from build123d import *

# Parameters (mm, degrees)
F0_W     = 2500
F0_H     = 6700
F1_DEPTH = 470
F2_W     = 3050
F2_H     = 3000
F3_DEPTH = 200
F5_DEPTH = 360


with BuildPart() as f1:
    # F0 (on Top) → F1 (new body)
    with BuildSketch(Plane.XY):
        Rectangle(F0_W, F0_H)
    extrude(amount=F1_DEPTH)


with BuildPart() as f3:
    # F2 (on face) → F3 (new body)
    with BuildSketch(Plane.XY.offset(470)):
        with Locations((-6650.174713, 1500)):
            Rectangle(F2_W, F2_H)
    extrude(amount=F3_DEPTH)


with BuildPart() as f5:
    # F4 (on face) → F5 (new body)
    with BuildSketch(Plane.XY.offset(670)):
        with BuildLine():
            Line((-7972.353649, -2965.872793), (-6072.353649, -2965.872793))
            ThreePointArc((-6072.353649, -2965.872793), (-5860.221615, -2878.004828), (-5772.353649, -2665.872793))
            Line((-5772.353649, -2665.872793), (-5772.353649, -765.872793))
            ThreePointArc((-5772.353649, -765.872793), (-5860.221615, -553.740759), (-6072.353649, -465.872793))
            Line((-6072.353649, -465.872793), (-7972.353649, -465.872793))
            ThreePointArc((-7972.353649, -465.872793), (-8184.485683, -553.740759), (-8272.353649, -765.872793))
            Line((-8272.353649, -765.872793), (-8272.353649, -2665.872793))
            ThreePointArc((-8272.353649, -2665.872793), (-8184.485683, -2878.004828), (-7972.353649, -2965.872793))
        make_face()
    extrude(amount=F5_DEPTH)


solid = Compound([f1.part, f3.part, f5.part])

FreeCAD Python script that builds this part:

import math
import FreeCAD as App
import Part
import Sketcher
Q = App.Units.Quantity


def add_polygon(sketch, points):
    """Adds a closed chain of lines whose ends are joined by coincident constraints."""
    first, n = sketch.GeometryCount, len(points)
    for a, b in zip(points, points[1:] + points[:1]):
        sketch.addGeometry(Part.LineSegment(App.Vector(*a, 0), App.Vector(*b, 0)), False)
    for i in range(n):
        sketch.addConstraint(Sketcher.Constraint("Coincident", first + i, 2, first + (i + 1) % n, 1))

doc = App.newDocument("Part")
body = doc.addObject("PartDesign::Body", "Body")

sketch1 = body.newObject("Sketcher::SketchObject", "Sketch")
sketch1.AttachmentSupport = (doc.getObject("XY_Plane"), [""])
sketch1.MapMode = "FlatFace"
add_polygon(sketch1, [(-1250, 3350), (-1250, -3350), (1250, -3350), (1250, 3350)])
sketch1.addConstraint([
    Sketcher.Constraint("Vertical", 0),
    Sketcher.Constraint("Horizontal", 1),
    Sketcher.Constraint("Vertical", 2),
    Sketcher.Constraint("Horizontal", 3),
    Sketcher.Constraint("Symmetric", 0, 2, 2, 2, -1, 1),
    Sketcher.Constraint("DistanceX", 1, 1, 1, 2, Q("2500 mm")),
    Sketcher.Constraint("DistanceY", 0, 2, 0, 1, Q("6700 mm")),
])
pad1 = body.newObject("PartDesign::Pad", "Pad")
pad1.Profile = sketch1
pad1.Length = 470
body2 = doc.addObject("PartDesign::Body", "Body001")

sketch2 = body2.newObject("Sketcher::SketchObject", "Sketch001")
sketch2.AttachmentSupport = (doc.getObject("XY_Plane001"), [""])
sketch2.MapMode = "FlatFace"
sketch2.AttachmentOffset = App.Placement(App.Vector(0, 0, 470), App.Rotation())
add_polygon(sketch2, [(-8175.174713, 3000), (-8175.174713, 0), (-5125.174713, 0), (-5125.174713, 3000)])
sketch2.addConstraint([
    Sketcher.Constraint("Vertical", 0),
    Sketcher.Constraint("Horizontal", 1),
    Sketcher.Constraint("Vertical", 2),
    Sketcher.Constraint("Horizontal", 3),
    Sketcher.Constraint("PointOnObject", 0, 2, -1),
    Sketcher.Constraint("DistanceX", 1, 1, 1, 2, Q("3050 mm")),
    Sketcher.Constraint("DistanceY", 0, 2, 0, 1, Q("3000 mm")),
    Sketcher.Constraint("DistanceX", 0, 2, -1, 1, Q("8175.174713 mm")),
])
pad2 = body2.newObject("PartDesign::Pad", "Pad001")
pad2.Profile = sketch2
pad2.Length = 200
body3 = doc.addObject("PartDesign::Body", "Body002")

sketch3 = body3.newObject("Sketcher::SketchObject", "Sketch002")
sketch3.AttachmentSupport = (doc.getObject("XY_Plane002"), [""])
sketch3.MapMode = "FlatFace"
sketch3.AttachmentOffset = App.Placement(App.Vector(0, 0, 670), App.Rotation())
sketch3.addGeometry([
    Part.LineSegment(App.Vector(-7972.353649, -2965.872793, 0), App.Vector(-6072.353649, -2965.872793, 0)),
    Part.ArcOfCircle(Part.Circle(App.Vector(-6072.353649, -2665.872793, 0), App.Vector(0, 0, 1), 300), math.radians(-90), math.radians(0)),
    Part.LineSegment(App.Vector(-5772.353649, -2665.872793, 0), App.Vector(-5772.353649, -765.872793, 0)),
    Part.ArcOfCircle(Part.Circle(App.Vector(-6072.35365, -765.872794, 0), App.Vector(0, 0, 1), 300.000001), math.radians(0), math.radians(90)),
    Part.LineSegment(App.Vector(-6072.353649, -465.872793, 0), App.Vector(-7972.353649, -465.872793, 0)),
    Part.ArcOfCircle(Part.Circle(App.Vector(-7972.353648, -765.872794, 0), App.Vector(0, 0, 1), 300.000001), math.radians(90), math.radians(180)),
    Part.LineSegment(App.Vector(-8272.353649, -765.872793, 0), App.Vector(-8272.353649, -2665.872793, 0)),
    Part.ArcOfCircle(Part.Circle(App.Vector(-7972.353649, -2665.872793, 0), App.Vector(0, 0, 1), 300), math.radians(180), math.radians(270)),
], False)
sketch3.addConstraint([
    Sketcher.Constraint("Tangent", 0, 2, 1, 1),
    Sketcher.Constraint("Tangent", 1, 2, 2, 1),
    Sketcher.Constraint("Tangent", 2, 2, 3, 1),
    Sketcher.Constraint("Tangent", 3, 2, 4, 1),
    Sketcher.Constraint("Tangent", 4, 2, 5, 1),
    Sketcher.Constraint("Tangent", 5, 2, 6, 1),
    Sketcher.Constraint("Tangent", 6, 2, 7, 1),
    Sketcher.Constraint("Tangent", 7, 2, 0, 1),
    Sketcher.Constraint("Horizontal", 0),
    Sketcher.Constraint("Vertical", 2),
    Sketcher.Constraint("Horizontal", 4),
    Sketcher.Constraint("Vertical", 6),
    Sketcher.Constraint("Equal", 1, 3),
    Sketcher.Constraint("Equal", 3, 5),
    Sketcher.Constraint("Equal", 5, 7),
    Sketcher.Constraint("Equal", 4, 2),
    Sketcher.Constraint("Radius", 1, Q("300 mm")),
    Sketcher.Constraint("DistanceX", 0, 1, 0, 2, Q("1900 mm")),
    Sketcher.Constraint("DistanceX", 1, 3, -1, 1, Q("6072.353649 mm")),
    Sketcher.Constraint("DistanceY", 1, 3, -1, 1, Q("2665.872793 mm")),
])
pad3 = body3.newObject("PartDesign::Pad", "Pad002")
pad3.Profile = sketch3
pad3.Length = 360

doc.recompute()
